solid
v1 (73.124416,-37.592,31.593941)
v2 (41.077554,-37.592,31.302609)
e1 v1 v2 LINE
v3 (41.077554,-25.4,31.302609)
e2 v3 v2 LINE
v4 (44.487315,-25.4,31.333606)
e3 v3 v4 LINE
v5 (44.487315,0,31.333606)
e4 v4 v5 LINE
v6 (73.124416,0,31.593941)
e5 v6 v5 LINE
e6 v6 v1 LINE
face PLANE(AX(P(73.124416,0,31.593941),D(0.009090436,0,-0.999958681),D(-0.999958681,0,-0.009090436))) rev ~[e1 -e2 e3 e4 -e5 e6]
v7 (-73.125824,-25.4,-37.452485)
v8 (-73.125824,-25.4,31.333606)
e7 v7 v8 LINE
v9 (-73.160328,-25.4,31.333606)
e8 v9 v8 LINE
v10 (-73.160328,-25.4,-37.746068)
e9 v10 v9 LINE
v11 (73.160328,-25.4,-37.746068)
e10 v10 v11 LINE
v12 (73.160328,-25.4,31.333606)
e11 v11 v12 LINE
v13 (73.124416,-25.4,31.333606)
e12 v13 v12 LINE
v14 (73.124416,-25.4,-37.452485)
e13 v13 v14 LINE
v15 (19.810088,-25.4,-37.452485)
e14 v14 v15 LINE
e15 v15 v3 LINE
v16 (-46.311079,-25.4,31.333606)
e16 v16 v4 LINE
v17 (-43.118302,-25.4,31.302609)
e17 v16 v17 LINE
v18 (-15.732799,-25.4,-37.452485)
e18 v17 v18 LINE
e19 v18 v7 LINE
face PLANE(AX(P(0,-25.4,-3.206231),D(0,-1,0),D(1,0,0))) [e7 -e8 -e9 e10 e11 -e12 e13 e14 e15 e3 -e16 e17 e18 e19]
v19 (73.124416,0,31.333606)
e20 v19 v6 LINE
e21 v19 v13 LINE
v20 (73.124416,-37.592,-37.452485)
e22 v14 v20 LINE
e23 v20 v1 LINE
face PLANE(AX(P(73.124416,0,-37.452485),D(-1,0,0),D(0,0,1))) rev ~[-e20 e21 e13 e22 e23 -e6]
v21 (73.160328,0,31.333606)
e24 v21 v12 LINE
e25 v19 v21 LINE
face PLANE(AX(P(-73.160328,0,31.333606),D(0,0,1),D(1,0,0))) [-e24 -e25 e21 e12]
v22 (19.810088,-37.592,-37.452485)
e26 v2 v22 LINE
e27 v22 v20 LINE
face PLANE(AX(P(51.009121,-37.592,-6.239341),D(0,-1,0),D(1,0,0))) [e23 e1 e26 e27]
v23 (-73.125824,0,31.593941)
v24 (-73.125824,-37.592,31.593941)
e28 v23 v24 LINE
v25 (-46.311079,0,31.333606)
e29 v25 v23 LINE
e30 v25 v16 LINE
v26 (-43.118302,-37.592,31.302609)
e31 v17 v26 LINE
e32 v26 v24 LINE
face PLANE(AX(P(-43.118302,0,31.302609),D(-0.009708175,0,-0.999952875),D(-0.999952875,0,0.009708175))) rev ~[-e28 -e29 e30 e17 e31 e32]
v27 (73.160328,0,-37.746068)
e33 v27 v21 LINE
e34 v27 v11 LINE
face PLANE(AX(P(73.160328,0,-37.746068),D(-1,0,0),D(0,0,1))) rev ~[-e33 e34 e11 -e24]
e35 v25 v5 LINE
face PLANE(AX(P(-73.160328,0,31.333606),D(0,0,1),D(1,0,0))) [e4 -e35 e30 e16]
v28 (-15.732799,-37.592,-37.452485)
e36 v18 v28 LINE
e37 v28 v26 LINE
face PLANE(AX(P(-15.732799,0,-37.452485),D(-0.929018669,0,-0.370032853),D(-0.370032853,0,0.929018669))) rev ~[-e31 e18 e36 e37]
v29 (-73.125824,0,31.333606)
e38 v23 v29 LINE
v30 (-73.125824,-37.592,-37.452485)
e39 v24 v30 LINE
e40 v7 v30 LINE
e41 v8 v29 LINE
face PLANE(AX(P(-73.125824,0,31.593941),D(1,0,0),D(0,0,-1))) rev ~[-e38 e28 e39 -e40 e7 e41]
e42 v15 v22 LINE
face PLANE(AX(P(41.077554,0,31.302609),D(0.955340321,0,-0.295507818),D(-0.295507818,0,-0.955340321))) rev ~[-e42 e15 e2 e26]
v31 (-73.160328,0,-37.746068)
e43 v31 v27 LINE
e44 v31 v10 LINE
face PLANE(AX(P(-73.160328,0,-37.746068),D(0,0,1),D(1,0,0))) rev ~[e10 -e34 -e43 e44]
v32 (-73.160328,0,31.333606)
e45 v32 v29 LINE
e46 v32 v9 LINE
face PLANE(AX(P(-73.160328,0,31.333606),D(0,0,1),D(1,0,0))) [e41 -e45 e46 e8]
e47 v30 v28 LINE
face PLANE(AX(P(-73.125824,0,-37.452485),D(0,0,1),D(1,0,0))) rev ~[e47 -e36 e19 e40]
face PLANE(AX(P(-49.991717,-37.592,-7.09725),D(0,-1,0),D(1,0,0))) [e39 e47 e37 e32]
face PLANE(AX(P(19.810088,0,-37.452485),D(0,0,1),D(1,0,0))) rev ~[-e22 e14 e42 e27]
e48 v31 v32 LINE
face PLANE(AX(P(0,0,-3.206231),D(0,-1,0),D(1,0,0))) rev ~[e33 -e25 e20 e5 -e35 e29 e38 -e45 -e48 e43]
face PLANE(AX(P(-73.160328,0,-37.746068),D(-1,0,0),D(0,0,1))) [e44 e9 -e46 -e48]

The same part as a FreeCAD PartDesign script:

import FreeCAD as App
import Part
import Sketcher
Q = App.Units.Quantity


def add_polygon(sketch, points):
    """Adds a closed chain of lines whose ends are joined by coincident constraints."""
    first, n = sketch.GeometryCount, len(points)
    for a, b in zip(points, points[1:] + points[:1]):
        sketch.addGeometry(Part.LineSegment(App.Vector(*a, 0), App.Vector(*b, 0)), False)
    for i in range(n):
        sketch.addConstraint(Sketcher.Constraint("Coincident", first + i, 2, first + (i + 1) % n, 1))

doc = App.newDocument("Part")
params = doc.addObject("Spreadsheet::Sheet", "Params")
for row, (alias, value) in enumerate([
    ("pad1_length", "1 in"),
    ("pad2_length", "1.48 in"),
], start=1):
    params.set(f"A{row}", alias)
    params.set(f"B{row}", "=" + value)
    params.setAlias(f"B{row}", alias)

body = doc.addObject("PartDesign::Body", "Body")

sketch1 = body.newObject("Sketcher::SketchObject", "Sketch")
sketch1.AttachmentSupport = (doc.getObject("XZ_Plane"), [""])
sketch1.MapMode = "FlatFace"
add_polygon(sketch1, [(-73.160328, 31.333606), (-73.160328, -37.746068), (73.160328, -37.746068), (73.160328, 31.333606)])
sketch1.addConstraint(Sketcher.Constraint("Vertical", 0))
sketch1.addConstraint(Sketcher.Constraint("Horizontal", 1))
sketch1.addConstraint(Sketcher.Constraint("Vertical", 2))
sketch1.addConstraint(Sketcher.Constraint("Horizontal", 3))
sketch1.addConstraint(Sketcher.Constraint("DistanceX", 1, 1, 1, 2, Q("146.320656 mm")))
sketch1.addConstraint(Sketcher.Constraint("DistanceY", 0, 2, 0, 1, Q("69.079675 mm")))
sketch1.addConstraint(Sketcher.Constraint("DistanceX", 0, 2, -1, 1, Q("73.160328 mm")))
sketch1.addConstraint(Sketcher.Constraint("DistanceY", 0, 2, -1, 1, Q("37.746068 mm")))
pad1 = body.newObject("PartDesign::Pad", "Pad")
pad1.Profile = sketch1
pad1.setExpression("Length", "Params.pad1_length")

sketch2 = body.newObject("Sketcher::SketchObject", "Sketch001")
sketch2.AttachmentSupport = (doc.getObject("XZ_Plane"), [""])
sketch2.MapMode = "FlatFace"
add_polygon(sketch2, [(-43.118302, 31.302609), (-73.125824, 31.593941), (-73.125824, -37.452485), (-15.732799, -37.452485)])
add_polygon(sketch2, [(73.124416, -37.452485), (73.124416, 31.593941), (41.077554, 31.302609), (19.810088, -37.452485)])
sketch2.addConstraint(Sketcher.Constraint("Vertical", 1))
sketch2.addConstraint(Sketcher.Constraint("Horizontal", 2))
sketch2.addConstraint(Sketcher.Constraint("Vertical", 4))
sketch2.addConstraint(Sketcher.Constraint("Horizontal", 7))
sketch2.addConstraint(Sketcher.Constraint("Horizontal", 0, 2, 4, 2))
sketch2.addConstraint(Sketcher.Constraint("Horizontal", 3, 2, 5, 2))
sketch2.addConstraint(Sketcher.Constraint("Horizontal", 2, 2, 6, 2))
sketch2.addConstraint(Sketcher.Constraint("Distance", 3, Q("74.008302 mm")))
sketch2.addConstraint(Sketcher.Constraint("DistanceX", 2, 2, -1, 1, Q("15.732799 mm")))
sketch2.addConstraint(Sketcher.Constraint("DistanceX", 2, 1, 2, 2, Q("57.393025 mm")))
sketch2.addConstraint(Sketcher.Constraint("DistanceX", 7, 1, 7, 2, Q("53.314328 mm")))
sketch2.addConstraint(Sketcher.Constraint("DistanceY", 1, 2, 1, 1, Q("69.046426 mm")))
sketch2.addConstraint(Sketcher.Constraint("DistanceY", -1, 1, 0, 2, Q("31.593941 mm")))
sketch2.addConstraint(Sketcher.Constraint("DistanceY", -1, 1, 3, 2, Q("31.302609 mm")))
sketch2.addConstraint(Sketcher.Constraint("DistanceX", -1, 1, 6, 2, Q("19.810088 mm")))
sketch2.addConstraint(Sketcher.Constraint("DistanceX", 5, 2, 4, 2, Q("32.046862 mm")))
pad2 = body.newObject("PartDesign::Pad", "Pad001")
pad2.Profile = sketch2
pad2.setExpression("Length", "Params.pad2_length")

doc.recompute()
